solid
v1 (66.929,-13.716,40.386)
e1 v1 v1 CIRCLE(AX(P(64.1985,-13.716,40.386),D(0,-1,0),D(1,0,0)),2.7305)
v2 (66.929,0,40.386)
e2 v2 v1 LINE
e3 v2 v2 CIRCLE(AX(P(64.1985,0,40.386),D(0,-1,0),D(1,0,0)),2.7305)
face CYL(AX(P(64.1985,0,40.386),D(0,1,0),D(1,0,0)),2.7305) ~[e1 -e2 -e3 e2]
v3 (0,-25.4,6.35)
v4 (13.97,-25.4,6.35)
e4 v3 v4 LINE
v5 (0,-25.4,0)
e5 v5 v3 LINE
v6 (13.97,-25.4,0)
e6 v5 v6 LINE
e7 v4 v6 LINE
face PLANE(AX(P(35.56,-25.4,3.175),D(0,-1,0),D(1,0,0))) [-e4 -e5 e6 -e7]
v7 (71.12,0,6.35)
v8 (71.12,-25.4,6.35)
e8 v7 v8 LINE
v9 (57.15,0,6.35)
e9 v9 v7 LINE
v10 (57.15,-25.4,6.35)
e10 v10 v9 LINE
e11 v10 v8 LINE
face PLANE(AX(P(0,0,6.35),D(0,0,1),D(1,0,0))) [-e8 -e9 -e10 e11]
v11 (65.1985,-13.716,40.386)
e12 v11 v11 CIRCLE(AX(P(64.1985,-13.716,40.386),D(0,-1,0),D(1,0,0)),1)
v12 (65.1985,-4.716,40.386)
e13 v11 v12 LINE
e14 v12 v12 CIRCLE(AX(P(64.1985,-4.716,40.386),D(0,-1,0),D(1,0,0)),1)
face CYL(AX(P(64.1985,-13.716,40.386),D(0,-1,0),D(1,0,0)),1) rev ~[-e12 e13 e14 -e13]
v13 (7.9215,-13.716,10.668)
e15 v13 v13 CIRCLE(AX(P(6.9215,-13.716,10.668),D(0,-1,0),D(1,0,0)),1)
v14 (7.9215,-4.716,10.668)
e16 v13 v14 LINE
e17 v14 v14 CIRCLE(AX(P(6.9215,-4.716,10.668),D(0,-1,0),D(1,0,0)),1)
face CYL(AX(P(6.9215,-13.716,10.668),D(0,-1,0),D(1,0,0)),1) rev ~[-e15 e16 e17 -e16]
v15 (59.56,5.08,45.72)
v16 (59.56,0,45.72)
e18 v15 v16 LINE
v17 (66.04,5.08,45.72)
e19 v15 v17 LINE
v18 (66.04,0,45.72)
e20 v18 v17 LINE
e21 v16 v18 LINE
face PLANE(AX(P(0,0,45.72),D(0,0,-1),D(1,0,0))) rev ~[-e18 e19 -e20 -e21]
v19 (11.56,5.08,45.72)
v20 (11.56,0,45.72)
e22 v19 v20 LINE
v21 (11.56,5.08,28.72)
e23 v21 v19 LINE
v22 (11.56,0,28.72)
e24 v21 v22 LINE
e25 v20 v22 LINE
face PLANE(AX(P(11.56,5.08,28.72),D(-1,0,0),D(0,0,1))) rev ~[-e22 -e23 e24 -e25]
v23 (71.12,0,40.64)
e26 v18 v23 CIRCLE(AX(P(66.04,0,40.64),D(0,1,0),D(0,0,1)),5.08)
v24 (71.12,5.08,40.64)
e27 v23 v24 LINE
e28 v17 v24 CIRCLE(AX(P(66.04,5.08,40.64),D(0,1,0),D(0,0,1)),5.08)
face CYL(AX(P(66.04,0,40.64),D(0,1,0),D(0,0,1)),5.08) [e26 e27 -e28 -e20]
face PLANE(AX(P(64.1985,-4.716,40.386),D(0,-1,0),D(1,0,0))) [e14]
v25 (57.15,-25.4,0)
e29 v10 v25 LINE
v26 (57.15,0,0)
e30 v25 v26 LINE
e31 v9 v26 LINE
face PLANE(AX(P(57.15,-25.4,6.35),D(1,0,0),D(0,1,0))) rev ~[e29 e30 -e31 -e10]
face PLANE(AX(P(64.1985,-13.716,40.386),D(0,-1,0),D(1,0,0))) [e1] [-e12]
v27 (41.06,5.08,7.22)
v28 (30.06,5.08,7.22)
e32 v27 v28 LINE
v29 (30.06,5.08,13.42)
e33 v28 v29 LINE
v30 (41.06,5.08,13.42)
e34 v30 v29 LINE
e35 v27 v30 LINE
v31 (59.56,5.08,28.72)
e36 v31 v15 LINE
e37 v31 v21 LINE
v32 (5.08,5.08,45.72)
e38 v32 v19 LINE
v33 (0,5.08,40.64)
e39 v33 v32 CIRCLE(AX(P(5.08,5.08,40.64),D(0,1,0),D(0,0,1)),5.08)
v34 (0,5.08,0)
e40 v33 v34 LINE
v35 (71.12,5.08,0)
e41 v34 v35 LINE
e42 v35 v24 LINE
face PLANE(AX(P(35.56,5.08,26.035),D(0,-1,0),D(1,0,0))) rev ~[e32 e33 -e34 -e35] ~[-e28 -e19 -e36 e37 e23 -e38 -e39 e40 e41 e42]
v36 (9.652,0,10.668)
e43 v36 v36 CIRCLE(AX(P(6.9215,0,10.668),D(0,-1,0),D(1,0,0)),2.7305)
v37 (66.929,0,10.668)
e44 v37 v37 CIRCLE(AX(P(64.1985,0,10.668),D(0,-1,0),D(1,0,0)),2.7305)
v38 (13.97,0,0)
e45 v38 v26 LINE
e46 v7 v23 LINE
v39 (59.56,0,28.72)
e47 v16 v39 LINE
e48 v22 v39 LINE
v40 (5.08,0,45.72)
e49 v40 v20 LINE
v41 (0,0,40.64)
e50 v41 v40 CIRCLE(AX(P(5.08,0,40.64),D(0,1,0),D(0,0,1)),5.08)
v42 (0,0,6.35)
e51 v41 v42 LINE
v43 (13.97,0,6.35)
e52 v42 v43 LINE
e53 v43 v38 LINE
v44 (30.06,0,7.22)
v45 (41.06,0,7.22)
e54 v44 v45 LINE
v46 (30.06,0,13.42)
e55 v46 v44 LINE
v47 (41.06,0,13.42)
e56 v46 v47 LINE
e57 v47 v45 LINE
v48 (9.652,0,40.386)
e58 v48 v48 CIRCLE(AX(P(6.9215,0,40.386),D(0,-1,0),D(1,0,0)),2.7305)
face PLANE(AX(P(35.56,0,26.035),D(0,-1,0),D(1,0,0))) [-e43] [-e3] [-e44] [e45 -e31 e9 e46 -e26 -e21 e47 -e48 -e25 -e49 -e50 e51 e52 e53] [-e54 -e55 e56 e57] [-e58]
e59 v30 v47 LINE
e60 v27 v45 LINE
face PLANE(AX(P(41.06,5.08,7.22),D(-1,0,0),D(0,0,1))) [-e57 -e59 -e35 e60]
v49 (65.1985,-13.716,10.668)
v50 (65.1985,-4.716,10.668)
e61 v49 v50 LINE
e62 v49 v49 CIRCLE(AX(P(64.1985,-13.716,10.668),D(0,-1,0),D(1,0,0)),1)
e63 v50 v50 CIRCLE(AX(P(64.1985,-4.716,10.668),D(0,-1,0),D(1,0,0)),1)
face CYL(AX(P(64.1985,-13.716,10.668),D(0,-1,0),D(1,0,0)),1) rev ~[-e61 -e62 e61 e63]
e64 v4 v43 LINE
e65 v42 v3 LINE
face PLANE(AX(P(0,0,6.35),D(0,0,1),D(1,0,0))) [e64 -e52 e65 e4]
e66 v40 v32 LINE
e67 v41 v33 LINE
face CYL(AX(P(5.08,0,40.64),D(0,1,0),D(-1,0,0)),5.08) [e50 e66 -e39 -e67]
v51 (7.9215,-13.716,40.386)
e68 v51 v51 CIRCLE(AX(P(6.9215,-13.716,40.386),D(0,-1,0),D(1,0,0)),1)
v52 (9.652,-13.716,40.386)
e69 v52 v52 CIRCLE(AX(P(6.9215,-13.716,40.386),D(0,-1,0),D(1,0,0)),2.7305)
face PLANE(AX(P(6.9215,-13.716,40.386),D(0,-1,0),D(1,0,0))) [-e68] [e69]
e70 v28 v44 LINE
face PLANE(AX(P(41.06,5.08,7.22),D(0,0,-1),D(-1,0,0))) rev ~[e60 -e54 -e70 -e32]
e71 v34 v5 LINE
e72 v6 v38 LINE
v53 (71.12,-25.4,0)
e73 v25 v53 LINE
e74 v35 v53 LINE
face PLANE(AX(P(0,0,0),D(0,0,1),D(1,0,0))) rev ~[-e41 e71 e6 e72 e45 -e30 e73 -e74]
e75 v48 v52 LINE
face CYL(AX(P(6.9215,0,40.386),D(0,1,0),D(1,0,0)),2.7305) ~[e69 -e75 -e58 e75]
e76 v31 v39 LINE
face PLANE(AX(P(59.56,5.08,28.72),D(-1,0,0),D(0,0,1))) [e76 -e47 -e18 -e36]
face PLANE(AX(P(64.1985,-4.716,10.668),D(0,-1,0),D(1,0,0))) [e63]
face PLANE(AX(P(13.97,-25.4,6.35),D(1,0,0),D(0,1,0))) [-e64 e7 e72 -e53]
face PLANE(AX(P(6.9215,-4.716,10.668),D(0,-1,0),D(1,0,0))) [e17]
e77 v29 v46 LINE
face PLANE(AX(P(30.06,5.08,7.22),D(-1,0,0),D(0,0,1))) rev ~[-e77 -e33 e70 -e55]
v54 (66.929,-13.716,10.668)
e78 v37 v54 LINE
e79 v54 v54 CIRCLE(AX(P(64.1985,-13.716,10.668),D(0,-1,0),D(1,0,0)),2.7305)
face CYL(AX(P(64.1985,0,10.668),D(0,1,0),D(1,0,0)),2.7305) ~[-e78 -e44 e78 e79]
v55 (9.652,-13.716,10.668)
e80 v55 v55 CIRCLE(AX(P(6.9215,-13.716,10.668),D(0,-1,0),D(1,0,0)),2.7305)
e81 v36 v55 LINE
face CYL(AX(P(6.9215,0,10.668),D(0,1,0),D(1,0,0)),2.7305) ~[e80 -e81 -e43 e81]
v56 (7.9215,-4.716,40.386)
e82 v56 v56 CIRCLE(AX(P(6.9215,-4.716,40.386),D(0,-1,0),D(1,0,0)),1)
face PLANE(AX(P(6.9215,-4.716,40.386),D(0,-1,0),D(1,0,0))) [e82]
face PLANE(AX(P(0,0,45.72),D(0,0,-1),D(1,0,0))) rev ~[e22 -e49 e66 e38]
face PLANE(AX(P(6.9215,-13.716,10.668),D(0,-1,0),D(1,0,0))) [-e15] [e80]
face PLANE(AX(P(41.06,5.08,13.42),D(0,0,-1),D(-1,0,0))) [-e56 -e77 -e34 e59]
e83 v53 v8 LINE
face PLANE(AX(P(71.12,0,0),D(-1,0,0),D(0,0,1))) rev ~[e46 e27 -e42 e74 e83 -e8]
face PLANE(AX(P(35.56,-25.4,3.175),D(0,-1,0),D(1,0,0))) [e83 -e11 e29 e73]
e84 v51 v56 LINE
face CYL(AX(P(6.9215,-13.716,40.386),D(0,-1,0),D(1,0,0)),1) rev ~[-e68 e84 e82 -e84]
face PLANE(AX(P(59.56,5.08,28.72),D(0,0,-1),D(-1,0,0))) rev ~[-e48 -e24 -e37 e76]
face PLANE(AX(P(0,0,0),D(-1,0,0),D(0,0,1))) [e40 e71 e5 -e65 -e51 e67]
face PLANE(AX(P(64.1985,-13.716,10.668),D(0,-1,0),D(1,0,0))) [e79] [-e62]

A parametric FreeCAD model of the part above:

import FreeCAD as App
import Part
import Sketcher
from FreeCAD import Vector
Q = App.Units.Quantity


def edges_at(feature, points):
    """Names of the edges that pass closest to the given points."""
    edges = feature.Shape.Edges
    near = lambda p: min(range(len(edges)), key=lambda i: edges[i].distToShape(Part.Vertex(*p))[0])
    return sorted({f"Edge{near(p) + 1}" for p in points})

doc = App.newDocument("Part")
body = doc.addObject("PartDesign::Body", "Body")

sketch1 = body.newObject("Sketcher::SketchObject", "Sketch")
sketch1.AttachmentSupport = (doc.getObject("XZ_Plane"), [""])
sketch1.MapMode = "FlatFace"
sketch1.addGeometry(Part.Circle(Vector(6.9, 40.4, 0), Vector(0, 0, 1), 2.7), False)
sketch1.addConstraint([
    Sketcher.Constraint("Diameter", 0, Q("0.215 in")),
    Sketcher.Constraint("DistanceY", -1, 1, 0, 3, Q("1.59 in")),
    Sketcher.Constraint("DistanceX", -1, 1, 0, 3, Q("0.2725 in")),
])
pad1 = body.newObject("PartDesign::Pad", "Pad")
pad1.Profile = sketch1
pad1.Length = Q("0.54 in")
body2 = doc.addObject("PartDesign::Body", "Body001")

sketch2 = body2.newObject("Sketcher::SketchObject", "Sketch001")
sketch2.AttachmentSupport = (doc.getObject("XZ_Plane001"), [""])
sketch2.MapMode = "FlatFace"
sketch2.addGeometry(Part.Circle(Vector(6.9, 10.7, 0), Vector(0, 0, 1), 2.7), False)
sketch2.addConstraint([
    Sketcher.Constraint("Diameter", 0, Q("0.215 in")),
    Sketcher.Constraint("DistanceY", -1, 1, 0, 3, Q("0.42 in")),
    Sketcher.Constraint("DistanceX", -1, 1, 0, 3, Q("0.2725 in")),
])
pad2 = body2.newObject("PartDesign::Pad", "Pad001")
pad2.Profile = sketch2
pad2.Length = Q("0.54 in")
body3 = doc.addObject("PartDesign::Body", "Body002")

sketch3 = body3.newObject("Sketcher::SketchObject", "Sketch002")
sketch3.AttachmentSupport = (doc.getObject("XZ_Plane002"), [""])
sketch3.MapMode = "FlatFace"
sketch3.addGeometry(Part.Circle(Vector(64.2, 10.7, 0), Vector(0, 0, 1), 2.7), False)
sketch3.addConstraint([
    Sketcher.Constraint("Diameter", 0, Q("0.215 in")),
    Sketcher.Constraint("DistanceY", -1, 1, 0, 3, Q("0.42 in")),
    Sketcher.Constraint("DistanceX", -1, 1, 0, 3, Q("2.5275 in")),
])
pad3 = body3.newObject("PartDesign::Pad", "Pad002")
pad3.Profile = sketch3
pad3.Length = Q("0.54 in")
body4 = doc.addObject("PartDesign::Body", "Body003")

sketch4 = body4.newObject("Sketcher::SketchObject", "Sketch003")
sketch4.AttachmentSupport = (doc.getObject("XZ_Plane003"), [""])
sketch4.MapMode = "FlatFace"
sketch4.addGeometry(Part.Circle(Vector(64.2, 40.4, 0), Vector(0, 0, 1), 2.7), False)
sketch4.addConstraint([
    Sketcher.Constraint("Diameter", 0, Q("0.215 in")),
    Sketcher.Constraint("DistanceY", -1, 1, 0, 3, Q("1.59 in")),
    Sketcher.Constraint("DistanceX", -1, 1, 0, 3, Q("2.5275 in")),
])
pad4 = body4.newObject("PartDesign::Pad", "Pad003")
pad4.Profile = sketch4
pad4.Length = Q("0.54 in")
body.AllowCompound = True
doc.recompute()

boolean = body.newObject("PartDesign::Boolean", "Boolean")
boolean.Type = "Fuse"
boolean.addObjects([body2])
doc.recompute()

boolean2 = body.newObject("PartDesign::Boolean", "Boolean001")
boolean2.Type = "Fuse"
boolean2.addObjects([body3])
doc.recompute()

boolean3 = body.newObject("PartDesign::Boolean", "Boolean002")
boolean3.Type = "Fuse"
boolean3.addObjects([body4])

sketch5 = body.newObject("Sketcher::SketchObject", "Sketch004")
sketch5.AttachmentSupport = (doc.getObject("XZ_Plane"), [""])
sketch5.MapMode = "FlatFace"
sketch5.addGeometry([
    Part.LineSegment(Vector(0, 46, 0), Vector(0, 0, 0)),
    Part.LineSegment(Vector(0, 0, 0), Vector(71, 0, 0)),
    Part.LineSegment(Vector(71, 0, 0), Vector(71, 46, 0)),
    Part.LineSegment(Vector(71, 46, 0), Vector(0, 46, 0)),
], False)
sketch5.addConstraint([
    Sketcher.Constraint("Coincident", 0, 2, 1, 1),
    Sketcher.Constraint("Coincident", 1, 2, 2, 1),
    Sketcher.Constraint("Coincident", 2, 2, 3, 1),
    Sketcher.Constraint("Coincident", 3, 2, 0, 1),
    Sketcher.Constraint("Vertical", 0),
    Sketcher.Constraint("Horizontal", 1),
    Sketcher.Constraint("Vertical", 2),
    Sketcher.Constraint("Horizontal", 3),
    Sketcher.Constraint("Coincident", 0, 2, -1, 1),
    Sketcher.Constraint("DistanceX", 1, 1, 1, 2, Q("2.8 in")),
    Sketcher.Constraint("DistanceY", 0, 2, 0, 1, Q("1.8 in")),
])
pad5 = body.newObject("PartDesign::Pad", "Pad004")
pad5.Profile = sketch5
pad5.Length = Q("0.2 in")
pad5.Reversed = True

sketch6 = body.newObject("Sketcher::SketchObject", "Sketch005")
sketch6.AttachmentSupport = (doc.getObject("XZ_Plane"), [""])
sketch6.MapMode = "FlatFace"
sketch6.addGeometry([
    Part.LineSegment(Vector(0, 6, 0), Vector(0, 0, 0)),
    Part.LineSegment(Vector(0, 0, 0), Vector(71, 0, 0)),
    Part.LineSegment(Vector(71, 0, 0), Vector(71, 6, 0)),
    Part.LineSegment(Vector(71, 6, 0), Vector(0, 6, 0)),
], False)
sketch6.addConstraint([
    Sketcher.Constraint("Coincident", 0, 2, 1, 1),
    Sketcher.Constraint("Coincident", 1, 2, 2, 1),
    Sketcher.Constraint("Coincident", 2, 2, 3, 1),
    Sketcher.Constraint("Coincident", 3, 2, 0, 1),
    Sketcher.Constraint("Vertical", 0),
    Sketcher.Constraint("Horizontal", 1),
    Sketcher.Constraint("Vertical", 2),
    Sketcher.Constraint("Horizontal", 3),
    Sketcher.Constraint("Coincident", 0, 2, -1, 1),
    Sketcher.Constraint("DistanceX", 1, 1, 1, 2, Q("2.8 in")),
    Sketcher.Constraint("DistanceY", 0, 2, 0, 1, Q("0.25 in")),
])
pad6 = body.newObject("PartDesign::Pad", "Pad005")
pad6.Profile = sketch6
pad6.Length = Q("1 in")

sketch7 = body.newObject("Sketcher::SketchObject", "Sketch006")
sketch7.AttachmentSupport = (doc.getObject("XY_Plane"), [""])
sketch7.MapMode = "FlatFace"
sketch7.AttachmentOffset = App.Placement(Vector(0, 0, 0.25 * 25.4), App.Rotation())
sketch7.addGeometry([
    Part.LineSegment(Vector(14, 0, 0), Vector(14, -25, 0)),
    Part.LineSegment(Vector(14, -25, 0), Vector(57, -25, 0)),
    Part.LineSegment(Vector(57, -25, 0), Vector(57, 0, 0)),
    Part.LineSegment(Vector(57, 0, 0), Vector(14, 0, 0)),
], False)
sketch7.addConstraint([
    Sketcher.Constraint("Coincident", 0, 2, 1, 1),
    Sketcher.Constraint("Coincident", 1, 2, 2, 1),
    Sketcher.Constraint("Coincident", 2, 2, 3, 1),
    Sketcher.Constraint("Coincident", 3, 2, 0, 1),
    Sketcher.Constraint("Vertical", 0),
    Sketcher.Constraint("Horizontal", 1),
    Sketcher.Constraint("Vertical", 2),
    Sketcher.Constraint("Horizontal", 3),
    Sketcher.Constraint("PointOnObject", 2, 2, -1),
    Sketcher.Constraint("DistanceY", 0, 2, 0, 1, Q("1 in")),
    Sketcher.Constraint("DistanceX", 1, 1, 1, 2, Q("1.7 in")),
    Sketcher.Constraint("DistanceX", -1, 1, 0, 2, Q("0.55 in")),
])
pocket1 = body.newObject("PartDesign::Pocket", "Pocket")
pocket1.Profile = sketch7
pocket1.Type = "ThroughAll"

sketch8 = body.newObject("Sketcher::SketchObject", "Sketch007")
sketch8.AttachmentSupport = (doc.getObject("XZ_Plane"), [""])
sketch8.MapMode = "FlatFace"
sketch8.AttachmentOffset = App.Placement(Vector(0, 0, 0.54 * 25.4), App.Rotation())
sketch8.addGeometry([
    Part.Circle(Vector(6.9, 10.7, 0), Vector(0, 0, 1), 1),
    Part.Circle(Vector(6.9, 40.4, 0), Vector(0, 0, 1), 1),
    Part.Circle(Vector(64.2, 40.4, 0), Vector(0, 0, 1), 1),
    Part.Circle(Vector(64.2, 10.7, 0), Vector(0, 0, 1), 1),
], False)
sketch8.addConstraint([
    Sketcher.Constraint("Equal", 0, 1),
    Sketcher.Constraint("Equal", 1, 2),
    Sketcher.Constraint("Equal", 2, 3),
    Sketcher.Constraint("Horizontal", 1, 3, 2, 3),
    Sketcher.Constraint("Horizontal", 0, 3, 3, 3),
    Sketcher.Constraint("Vertical", 0, 3, 1, 3),
    Sketcher.Constraint("Vertical", 2, 3, 3, 3),
    Sketcher.Constraint("Diameter", 0, 2.0),
    Sketcher.Constraint("DistanceY", -1, 1, 0, 3, Q("0.42 in")),
    Sketcher.Constraint("DistanceY", -1, 1, 1, 3, Q("1.59 in")),
    Sketcher.Constraint("DistanceX", 1, 3, 2, 3, Q("2.255 in")),
    Sketcher.Constraint("DistanceX", -1, 1, 0, 3, Q("0.2725 in")),
])
pocket2 = body.newObject("PartDesign::Pocket", "Pocket001")
pocket2.Profile = sketch8
pocket2.Length = 9
doc.recompute()

fillet = body.newObject("PartDesign::Fillet", "Fillet")
fillet.Base = (pocket2, edges_at(pocket2, [(0, 2.54, 45.72), (71.12, 2.54, 45.72)]))
fillet.Radius = Q("0.2 in")

sketch9 = body.newObject("Sketcher::SketchObject", "Sketch008")
sketch9.AttachmentSupport = (doc.getObject("XZ_Plane"), [""])
sketch9.MapMode = "FlatFace"
sketch9.AttachmentOffset = App.Placement(Vector(0, 0, -0.2 * 25.4), App.Rotation())
sketch9.addGeometry([
    Part.LineSegment(Vector(60, 46, 0), Vector(60, 29, 0)),
    Part.LineSegment(Vector(60, 29, 0), Vector(12, 29, 0)),
    Part.LineSegment(Vector(12, 29, 0), Vector(12, 46, 0)),
    Part.LineSegment(Vector(12, 46, 0), Vector(60, 46, 0)),
    Part.LineSegment(Vector(41, 13, 0), Vector(41, 7, 0)),
    Part.LineSegment(Vector(41, 7, 0), Vector(30, 7, 0)),
    Part.LineSegment(Vector(30, 7, 0), Vector(30, 13, 0)),
    Part.LineSegment(Vector(30, 13, 0), Vector(41, 13, 0)),
], False)
sketch9.addConstraint([
    Sketcher.Constraint("Coincident", 0, 2, 1, 1),
    Sketcher.Constraint("Coincident", 1, 2, 2, 1),
    Sketcher.Constraint("Coincident", 2, 2, 3, 1),
    Sketcher.Constraint("Coincident", 3, 2, 0, 1),
    Sketcher.Constraint("Coincident", 4, 2, 5, 1),
    Sketcher.Constraint("Coincident", 5, 2, 6, 1),
    Sketcher.Constraint("Coincident", 6, 2, 7, 1),
    Sketcher.Constraint("Coincident", 7, 2, 4, 1),
    Sketcher.Constraint("Vertical", 0),
    Sketcher.Constraint("Horizontal", 1),
    Sketcher.Constraint("Vertical", 2),
    Sketcher.Constraint("Horizontal", 3),
    Sketcher.Constraint("Vertical", 4),
    Sketcher.Constraint("Horizontal", 5),
    Sketcher.Constraint("Vertical", 6),
    Sketcher.Constraint("Horizontal", 7),
    Sketcher.Constraint("DistanceY", -1, 1, 2, 2, Q("1.8 in")),
    Sketcher.Constraint("DistanceX", 1, 2, 1, 1, 48.0),
    Sketcher.Constraint("DistanceX", 5, 2, 5, 1, 11.0),
    Sketcher.Constraint("DistanceY", 0, 2, 0, 1, 17.0),
    Sketcher.Constraint("DistanceY", 4, 2, 4, 1, 6.2),
    Sketcher.Constraint("DistanceX", -1, 1, 0, 2, 59.56),
    Sketcher.Constraint("DistanceX", -1, 1, 4, 2, 41.06),
    Sketcher.Constraint("DistanceY", -1, 1, 4, 2, 7.22),
])
pocket3 = body.newObject("PartDesign::Pocket", "Pocket002")
pocket3.Profile = sketch9
pocket3.Length = Q("1 in")
pocket3.Reversed = True

doc.recompute()
